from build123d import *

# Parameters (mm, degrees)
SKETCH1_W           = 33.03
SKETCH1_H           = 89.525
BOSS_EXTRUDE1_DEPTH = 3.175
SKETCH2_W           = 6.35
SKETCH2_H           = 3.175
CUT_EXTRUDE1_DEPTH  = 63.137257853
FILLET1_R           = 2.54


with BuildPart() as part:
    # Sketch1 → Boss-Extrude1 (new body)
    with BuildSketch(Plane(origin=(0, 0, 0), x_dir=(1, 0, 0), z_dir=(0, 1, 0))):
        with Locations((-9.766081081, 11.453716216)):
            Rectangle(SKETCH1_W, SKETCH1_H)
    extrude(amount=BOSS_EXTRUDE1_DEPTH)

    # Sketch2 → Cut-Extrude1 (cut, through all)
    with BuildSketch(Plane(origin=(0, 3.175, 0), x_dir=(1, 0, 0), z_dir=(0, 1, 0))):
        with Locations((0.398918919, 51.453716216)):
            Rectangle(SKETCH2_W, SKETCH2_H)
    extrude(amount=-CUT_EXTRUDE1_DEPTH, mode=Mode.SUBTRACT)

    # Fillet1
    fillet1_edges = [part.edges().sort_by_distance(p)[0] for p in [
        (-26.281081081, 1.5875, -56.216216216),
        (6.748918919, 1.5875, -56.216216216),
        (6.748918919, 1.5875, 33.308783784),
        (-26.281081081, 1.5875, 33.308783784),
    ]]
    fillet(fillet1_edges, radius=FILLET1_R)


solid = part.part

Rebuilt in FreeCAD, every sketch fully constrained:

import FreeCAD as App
import Part
import Sketcher
Q = App.Units.Quantity


def edges_at(feature, points):
    """Names of the edges that pass closest to the given points."""
    edges = feature.Shape.Edges
    near = lambda p: min(range(len(edges)), key=lambda i: edges[i].distToShape(Part.Vertex(*p))[0])
    return sorted({f"Edge{near(p) + 1}" for p in points})


def add_polygon(sketch, points):
    """Adds a closed chain of lines whose ends are joined by coincident constraints."""
    first, n = sketch.GeometryCount, len(points)
    for a, b in zip(points, points[1:] + points[:1]):
        sketch.addGeometry(Part.LineSegment(App.Vector(*a, 0), App.Vector(*b, 0)), False)
    for i in range(n):
        sketch.addConstraint(Sketcher.Constraint("Coincident", first + i, 2, first + (i + 1) % n, 1))

doc = App.newDocument("Part")
params = doc.addObject("Spreadsheet::Sheet", "Params")
for row, (alias, value) in enumerate([
    ("pad1_length", "0.125 in"),
    ("sketch2_width", "0.25 in"),
    ("sketch2_height", "0.125 in"),
    ("fillet_radius", "0.1 in"),
], start=1):
    params.set(f"A{row}", alias)
    params.set(f"B{row}", "=" + value)
    params.setAlias(f"B{row}", alias)

body = doc.addObject("PartDesign::Body", "Body")

# Sketch on XZ plane
sketch1 = body.newObject("Sketcher::SketchObject", "Sketch")
sketch1.AttachmentSupport = (doc.getObject("XZ_Plane"), [""])
sketch1.MapMode = "FlatFace"
add_polygon(sketch1, [(-26, -56), (-26, 33), (7, 33), (7, -56)])  # lines 0-3
sketch1.addConstraint(Sketcher.Constraint("Vertical", 0))
sketch1.addConstraint(Sketcher.Constraint("Horizontal", 1))
sketch1.addConstraint(Sketcher.Constraint("Vertical", 2))
sketch1.addConstraint(Sketcher.Constraint("Horizontal", 3))
sketch1.addConstraint(Sketcher.Constraint("DistanceX", 1, 1, 1, 2, 33.03))
sketch1.addConstraint(Sketcher.Constraint("DistanceY", 0, 1, 0, 2, 89.525))
sketch1.addConstraint(Sketcher.Constraint("DistanceX", 0, 2, -1, 1, 26.281081))
sketch1.addConstraint(Sketcher.Constraint("DistanceY", -1, 1, 0, 2, 33.308784))
pad1 = body.newObject("PartDesign::Pad", "Pad")
pad1.Profile = sketch1
pad1.setExpression("Length", "Params.pad1_length")
pad1.Reversed = True

# Sketch on XZ plane
sketch2 = body.newObject("Sketcher::SketchObject", "Sketch001")
sketch2.AttachmentSupport = (doc.getObject("XZ_Plane"), [""])
sketch2.MapMode = "FlatFace"
sketch2.AttachmentOffset = App.Placement(App.Vector(0, 0, -0.125 * 25.4), App.Rotation())
add_polygon(sketch2, [(-2.8, -53), (-2.8, -49.9), (3.6, -49.9), (3.6, -53)])  # lines 0-3
sketch2.addConstraint(Sketcher.Constraint("Vertical", 0))
sketch2.addConstraint(Sketcher.Constraint("Horizontal", 1))
sketch2.addConstraint(Sketcher.Constraint("Vertical", 2))
sketch2.addConstraint(Sketcher.Constraint("Horizontal", 3))
sketch2.addConstraint(Sketcher.Constraint("DistanceX", 1, 1, 1, 2, Q("0.25 in")))
sketch2.addConstraint(Sketcher.Constraint("DistanceY", 0, 1, 0, 2, Q("0.125 in")))
sketch2.addConstraint(Sketcher.Constraint("DistanceX", 0, 2, -1, 1, 2.776081))
sketch2.addConstraint(Sketcher.Constraint("DistanceY", 0, 2, -1, 1, 49.866216))
sketch2.setExpression("Constraints[8]", "Params.sketch2_width")
sketch2.setExpression("Constraints[9]", "Params.sketch2_height")
pocket1 = body.newObject("PartDesign::Pocket", "Pocket")
pocket1.Profile = sketch2
pocket1.Type = "ThroughAll"
pocket1.Reversed = True
doc.recompute()

fillet = body.newObject("PartDesign::Fillet", "Fillet")
fillet.Base = (pocket1, edges_at(pocket1, [
    (-26.281, 1.587, -56.216),
    (6.749, 1.587, -56.216),
    (6.749, 1.587, 33.309),
    (-26.281, 1.587, 33.309),
]))
fillet.setExpression("Radius", "Params.fillet_radius")

doc.recompute()
